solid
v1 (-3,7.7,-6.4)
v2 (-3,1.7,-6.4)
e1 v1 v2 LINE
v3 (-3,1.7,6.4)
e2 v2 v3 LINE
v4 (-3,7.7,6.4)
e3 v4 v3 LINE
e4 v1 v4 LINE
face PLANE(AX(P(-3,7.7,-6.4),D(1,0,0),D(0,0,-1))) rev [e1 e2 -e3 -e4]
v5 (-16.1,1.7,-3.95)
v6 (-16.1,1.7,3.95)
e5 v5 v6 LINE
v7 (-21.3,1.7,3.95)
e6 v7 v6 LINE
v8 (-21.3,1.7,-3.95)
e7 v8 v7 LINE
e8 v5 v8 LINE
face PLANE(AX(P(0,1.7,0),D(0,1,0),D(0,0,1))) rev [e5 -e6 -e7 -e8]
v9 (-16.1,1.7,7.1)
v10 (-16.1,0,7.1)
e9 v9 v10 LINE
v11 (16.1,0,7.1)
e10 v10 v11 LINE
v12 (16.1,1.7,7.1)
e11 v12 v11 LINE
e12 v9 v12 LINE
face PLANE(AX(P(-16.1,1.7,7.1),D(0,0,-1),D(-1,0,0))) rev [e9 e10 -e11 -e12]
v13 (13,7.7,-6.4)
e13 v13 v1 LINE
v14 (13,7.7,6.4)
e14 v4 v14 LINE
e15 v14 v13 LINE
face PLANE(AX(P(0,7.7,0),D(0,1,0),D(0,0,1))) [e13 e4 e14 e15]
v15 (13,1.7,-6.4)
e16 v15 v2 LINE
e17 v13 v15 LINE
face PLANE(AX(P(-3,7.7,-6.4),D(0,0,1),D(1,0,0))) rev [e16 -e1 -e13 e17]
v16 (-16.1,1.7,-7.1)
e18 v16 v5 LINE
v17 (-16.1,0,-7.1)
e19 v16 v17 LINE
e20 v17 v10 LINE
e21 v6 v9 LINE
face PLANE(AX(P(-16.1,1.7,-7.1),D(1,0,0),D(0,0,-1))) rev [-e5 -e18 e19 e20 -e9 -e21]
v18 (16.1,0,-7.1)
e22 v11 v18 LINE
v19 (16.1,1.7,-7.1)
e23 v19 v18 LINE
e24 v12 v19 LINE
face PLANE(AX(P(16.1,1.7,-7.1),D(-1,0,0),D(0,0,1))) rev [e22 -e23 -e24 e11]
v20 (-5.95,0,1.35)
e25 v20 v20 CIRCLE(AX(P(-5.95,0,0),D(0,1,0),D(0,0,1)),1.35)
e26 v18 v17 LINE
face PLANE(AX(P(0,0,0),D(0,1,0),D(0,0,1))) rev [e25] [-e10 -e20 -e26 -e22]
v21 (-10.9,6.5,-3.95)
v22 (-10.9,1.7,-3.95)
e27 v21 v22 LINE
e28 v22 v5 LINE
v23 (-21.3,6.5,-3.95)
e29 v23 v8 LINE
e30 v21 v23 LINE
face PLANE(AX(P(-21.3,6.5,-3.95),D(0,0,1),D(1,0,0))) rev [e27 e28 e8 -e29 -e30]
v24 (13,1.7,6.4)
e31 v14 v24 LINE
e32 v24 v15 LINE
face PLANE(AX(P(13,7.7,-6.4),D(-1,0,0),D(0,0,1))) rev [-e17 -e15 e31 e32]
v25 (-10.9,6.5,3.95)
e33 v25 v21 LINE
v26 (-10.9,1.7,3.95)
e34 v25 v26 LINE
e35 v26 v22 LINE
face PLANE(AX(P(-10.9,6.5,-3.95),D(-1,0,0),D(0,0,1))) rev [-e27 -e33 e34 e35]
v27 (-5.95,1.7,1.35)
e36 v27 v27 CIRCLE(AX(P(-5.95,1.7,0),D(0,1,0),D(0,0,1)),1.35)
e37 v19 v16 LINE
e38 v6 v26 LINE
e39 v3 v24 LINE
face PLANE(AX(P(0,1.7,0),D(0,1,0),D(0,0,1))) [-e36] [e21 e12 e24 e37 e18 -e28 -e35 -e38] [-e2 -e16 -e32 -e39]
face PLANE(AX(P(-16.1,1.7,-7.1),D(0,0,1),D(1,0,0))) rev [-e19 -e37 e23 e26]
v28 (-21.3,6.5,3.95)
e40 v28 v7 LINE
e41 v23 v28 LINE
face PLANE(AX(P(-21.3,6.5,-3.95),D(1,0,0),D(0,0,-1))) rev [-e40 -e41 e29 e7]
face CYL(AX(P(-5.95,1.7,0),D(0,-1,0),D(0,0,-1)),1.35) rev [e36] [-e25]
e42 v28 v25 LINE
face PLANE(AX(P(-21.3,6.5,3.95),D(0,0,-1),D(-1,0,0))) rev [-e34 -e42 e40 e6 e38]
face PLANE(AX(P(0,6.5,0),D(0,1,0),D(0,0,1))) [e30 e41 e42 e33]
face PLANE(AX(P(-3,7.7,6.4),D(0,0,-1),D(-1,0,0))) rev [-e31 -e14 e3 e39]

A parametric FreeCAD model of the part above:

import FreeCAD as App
import Part
import Sketcher
Q = App.Units.Quantity


def add_polygon(sketch, points):
    """Adds a closed chain of lines whose ends are joined by coincident constraints."""
    first, n = sketch.GeometryCount, len(points)
    for a, b in zip(points, points[1:] + points[:1]):
        sketch.addGeometry(Part.LineSegment(App.Vector(*a, 0), App.Vector(*b, 0)), False)
    for i in range(n):
        sketch.addConstraint(Sketcher.Constraint("Coincident", first + i, 2, first + (i + 1) % n, 1))

doc = App.newDocument("Part")
body = doc.addObject("PartDesign::Body", "Body")

# Sketch on XZ plane
sketch1 = body.newObject("Sketcher::SketchObject", "Sketch")
sketch1.AttachmentSupport = (doc.getObject("XZ_Plane"), [""])
sketch1.MapMode = "FlatFace"
add_polygon(sketch1, [(-16.1, -7.1), (-16.1, 7.1), (16.1, 7.1), (16.1, -7.1)])  # lines 0-3
sketch1.addGeometry(Part.Circle(App.Vector(-6, 0, 0), App.Vector(0, 0, 1), 1.4), False)  # 4
sketch1.addConstraint(Sketcher.Constraint("Vertical", 0))
sketch1.addConstraint(Sketcher.Constraint("Horizontal", 1))
sketch1.addConstraint(Sketcher.Constraint("Vertical", 2))
sketch1.addConstraint(Sketcher.Constraint("Horizontal", 3))
sketch1.addConstraint(Sketcher.Constraint("Symmetric", 0, 2, 2, 2, -1, 1))
sketch1.addConstraint(Sketcher.Constraint("PointOnObject", 4, 3, -1))
sketch1.addConstraint(Sketcher.Constraint("Diameter", 4, Q("2.7 mm")))
sketch1.addConstraint(Sketcher.Constraint("DistanceX", 1, 1, 1, 2, Q("32.2 mm")))
sketch1.addConstraint(Sketcher.Constraint("DistanceY", 0, 1, 0, 2, Q("14.2 mm")))
sketch1.addConstraint(Sketcher.Constraint("DistanceX", 4, 3, -1, 1, Q("5.95 mm")))
pad1 = body.newObject("PartDesign::Pad", "Pad")
pad1.Profile = sketch1
pad1.Length = 1.7
pad1.Reversed = True

# Sketch on XZ plane
sketch2 = body.newObject("Sketcher::SketchObject", "Sketch001")
sketch2.AttachmentSupport = (doc.getObject("XZ_Plane"), [""])
sketch2.MapMode = "FlatFace"
sketch2.AttachmentOffset = App.Placement(App.Vector(0, 0, -1.7), App.Rotation())
add_polygon(sketch2, [(-3, -6), (-3, 6), (13, 6), (13, -6)])  # lines 0-3
sketch2.addConstraint(Sketcher.Constraint("Vertical", 0))
sketch2.addConstraint(Sketcher.Constraint("Horizontal", 1))
sketch2.addConstraint(Sketcher.Constraint("Vertical", 2))
sketch2.addConstraint(Sketcher.Constraint("Horizontal", 3))
sketch2.addConstraint(Sketcher.Constraint("DistanceX", 1, 1, 1, 2, Q("16 mm")))
sketch2.addConstraint(Sketcher.Constraint("DistanceY", 0, 1, 0, 2, Q("12.8 mm")))
sketch2.addConstraint(Sketcher.Constraint("DistanceX", 0, 2, -1, 1, Q("3 mm")))
sketch2.addConstraint(Sketcher.Constraint("DistanceY", -1, 1, 0, 2, Q("6.4 mm")))
pad2 = body.newObject("PartDesign::Pad", "Pad001")
pad2.Profile = sketch2
pad2.Length = 6
pad2.Reversed = True

# Sketch on XZ plane
sketch3 = body.newObject("Sketcher::SketchObject", "Sketch002")
sketch3.AttachmentSupport = (doc.getObject("XZ_Plane"), [""])
sketch3.MapMode = "FlatFace"
sketch3.AttachmentOffset = App.Placement(App.Vector(0, 0, -1.7), App.Rotation())
add_polygon(sketch3, [(-21, -4), (-21, 4), (-11, 4), (-11, -4)])  # lines 0-3
sketch3.addConstraint(Sketcher.Constraint("Vertical", 0))
sketch3.addConstraint(Sketcher.Constraint("Horizontal", 1))
sketch3.addConstraint(Sketcher.Constraint("Vertical", 2))
sketch3.addConstraint(Sketcher.Constraint("Horizontal", 3))
sketch3.addConstraint(Sketcher.Constraint("DistanceX", 1, 1, 1, 2, Q("10.4 mm")))
sketch3.addConstraint(Sketcher.Constraint("DistanceY", 0, 1, 0, 2, Q("7.9 mm")))
sketch3.addConstraint(Sketcher.Constraint("DistanceX", 0, 2, -1, 1, Q("21.3 mm")))
sketch3.addConstraint(Sketcher.Constraint("DistanceY", -1, 1, 0, 2, Q("3.95 mm")))
pad3 = body.newObject("PartDesign::Pad", "Pad002")
pad3.Profile = sketch3
pad3.Length = 4.8
pad3.Reversed = True

doc.recompute()
